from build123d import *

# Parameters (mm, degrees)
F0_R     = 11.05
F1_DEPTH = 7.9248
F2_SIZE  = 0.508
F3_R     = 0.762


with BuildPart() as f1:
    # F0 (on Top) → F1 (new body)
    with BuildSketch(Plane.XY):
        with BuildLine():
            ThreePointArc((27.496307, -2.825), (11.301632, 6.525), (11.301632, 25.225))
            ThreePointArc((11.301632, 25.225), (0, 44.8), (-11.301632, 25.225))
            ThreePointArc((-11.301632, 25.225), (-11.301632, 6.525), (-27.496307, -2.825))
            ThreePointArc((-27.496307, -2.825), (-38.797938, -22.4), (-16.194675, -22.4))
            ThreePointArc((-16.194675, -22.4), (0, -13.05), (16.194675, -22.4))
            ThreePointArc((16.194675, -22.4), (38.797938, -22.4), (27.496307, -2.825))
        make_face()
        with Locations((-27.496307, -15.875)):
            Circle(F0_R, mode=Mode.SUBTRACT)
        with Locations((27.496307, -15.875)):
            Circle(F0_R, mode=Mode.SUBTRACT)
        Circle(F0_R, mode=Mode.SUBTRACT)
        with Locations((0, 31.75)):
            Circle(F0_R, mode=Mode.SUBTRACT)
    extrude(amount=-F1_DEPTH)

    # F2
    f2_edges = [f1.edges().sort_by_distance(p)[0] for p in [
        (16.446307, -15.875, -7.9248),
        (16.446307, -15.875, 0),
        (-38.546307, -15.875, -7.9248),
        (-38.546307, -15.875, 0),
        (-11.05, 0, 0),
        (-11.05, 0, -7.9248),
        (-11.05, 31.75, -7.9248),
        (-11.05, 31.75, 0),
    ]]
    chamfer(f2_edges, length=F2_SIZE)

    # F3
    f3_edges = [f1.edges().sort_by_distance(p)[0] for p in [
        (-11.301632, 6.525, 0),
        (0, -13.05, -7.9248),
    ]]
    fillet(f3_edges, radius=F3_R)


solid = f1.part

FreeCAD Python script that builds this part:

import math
import FreeCAD as App
import Part
import Sketcher

V = App.Vector


def edges_at(feature, points):
    """Names of the edges that pass closest to the given points."""
    edges = feature.Shape.Edges
    near = lambda p: min(range(len(edges)), key=lambda i: edges[i].distToShape(Part.Vertex(*p))[0])
    return sorted({f"Edge{near(p) + 1}" for p in points})

doc = App.newDocument("Part")
params = doc.addObject("Spreadsheet::Sheet", "Params")
for row, (alias, value) in enumerate([
    ("sketch1_diameter", "22.1 mm"),
    ("sketch1_radius", "18.7 mm"),
    ("sketch1_radius2", "13.05 mm"),
    ("pad1_length", "7.9248 mm"),
    ("chamfer_size", "0.508 mm"),
    ("fillet_radius", "0.762 mm"),
], start=1):
    params.set(f"A{row}", alias)
    params.set(f"B{row}", "=" + value)
    params.setAlias(f"B{row}", alias)

body = doc.addObject("PartDesign::Body", "Body")

sketch1 = body.newObject("Sketcher::SketchObject", "Sketch")
sketch1.AttachmentSupport = (doc.getObject("XY_Plane"), [""])
sketch1.MapMode = "FlatFace"
sketch1.addGeometry([
    Part.ArcOfCircle(Part.Circle(V(27, 16, 0), V(0, 0, 1), 19), math.radians(150), math.radians(270)),
    Part.ArcOfCircle(Part.Circle(V(0, 32, 0), V(0, 0, 1), 13), math.radians(-30), math.radians(210)),
    Part.ArcOfCircle(Part.Circle(V(-27, 16, 0), V(0, 0, 1), 19), math.radians(-90), math.radians(30)),
    Part.ArcOfCircle(Part.Circle(V(-27, -16, 0), V(0, 0, 1), 13), math.radians(90), math.radians(330)),
    Part.ArcOfCircle(Part.Circle(V(0, -32, 0), V(0, 0, 1), 19), math.radians(30), math.radians(150)),
    Part.ArcOfCircle(Part.Circle(V(27, -16, 0), V(0, 0, 1), 13), math.radians(-150), math.radians(90)),
    Part.Circle(V(-27, -16, 0), V(0, 0, 1), 11),
    Part.Circle(V(27, -16, 0), V(0, 0, 1), 11),
    Part.Circle(V(0, 0, 0), V(0, 0, 1), 11),
    Part.Circle(V(0, 32, 0), V(0, 0, 1), 11),
], False)
sketch1.addConstraint([
    Sketcher.Constraint("Tangent", 0, 1, 1, 1),
    Sketcher.Constraint("Tangent", 1, 2, 2, 2),
    Sketcher.Constraint("Tangent", 2, 1, 3, 1),
    Sketcher.Constraint("Tangent", 3, 2, 4, 2),
    Sketcher.Constraint("Tangent", 4, 1, 5, 1),
    Sketcher.Constraint("Tangent", 5, 2, 0, 2),
    Sketcher.Constraint("Coincident", 8, 3, -1, 1),
    Sketcher.Constraint("Coincident", 6, 3, 3, 3),
    Sketcher.Constraint("Coincident", 7, 3, 5, 3),
    Sketcher.Constraint("Coincident", 9, 3, 1, 3),
    Sketcher.Constraint("Equal", 0, 2),
    Sketcher.Constraint("Equal", 1, 3),
    Sketcher.Constraint("Equal", 2, 4),
    Sketcher.Constraint("Equal", 3, 5),
    Sketcher.Constraint("Equal", 6, 7),
    Sketcher.Constraint("Equal", 7, 8),
    Sketcher.Constraint("Equal", 8, 9),
    Sketcher.Constraint("Symmetric", 0, 3, 3, 3, -1, 1),
    Sketcher.Constraint("Symmetric", 0, 3, 2, 3, -2),
    Sketcher.Constraint("PointOnObject", 4, 3, -2),
    Sketcher.Constraint("Diameter", 6, 22.1),
    Sketcher.Constraint("Radius", 0, 18.7),
    Sketcher.Constraint("Radius", 1, 13.05),
    Sketcher.Constraint("DistanceY", 3, 2, -1, 1, 22.4),
])
sketch1.setExpression("Constraints[20]", "Params.sketch1_diameter")
sketch1.setExpression("Constraints[21]", "Params.sketch1_radius")
sketch1.setExpression("Constraints[22]", "Params.sketch1_radius2")
pad1 = body.newObject("PartDesign::Pad", "Pad")
pad1.Profile = sketch1
pad1.setExpression("Length", "Params.pad1_length")
pad1.Reversed = True
doc.recompute()

chamfer = body.newObject("PartDesign::Chamfer", "Chamfer")
chamfer.Base = (pad1, edges_at(pad1, [
    (16.446, -15.875, -7.925),
    (16.446, -15.875, 0),
    (-38.546, -15.875, -7.925),
    (-38.546, -15.875, 0),
    (-11.05, 0, 0),
    (-11.05, 0, -7.925),
    (-11.05, 31.75, -7.925),
    (-11.05, 31.75, 0),
]))
chamfer.setExpression("Size", "Params.chamfer_size")
doc.recompute()

fillet = body.newObject("PartDesign::Fillet", "Fillet")
fillet.Base = (chamfer, edges_at(chamfer, [(-11.302, 6.525, 0), (0, -13.05, -7.925)]))
fillet.setExpression("Radius", "Params.fillet_radius")

doc.recompute()
